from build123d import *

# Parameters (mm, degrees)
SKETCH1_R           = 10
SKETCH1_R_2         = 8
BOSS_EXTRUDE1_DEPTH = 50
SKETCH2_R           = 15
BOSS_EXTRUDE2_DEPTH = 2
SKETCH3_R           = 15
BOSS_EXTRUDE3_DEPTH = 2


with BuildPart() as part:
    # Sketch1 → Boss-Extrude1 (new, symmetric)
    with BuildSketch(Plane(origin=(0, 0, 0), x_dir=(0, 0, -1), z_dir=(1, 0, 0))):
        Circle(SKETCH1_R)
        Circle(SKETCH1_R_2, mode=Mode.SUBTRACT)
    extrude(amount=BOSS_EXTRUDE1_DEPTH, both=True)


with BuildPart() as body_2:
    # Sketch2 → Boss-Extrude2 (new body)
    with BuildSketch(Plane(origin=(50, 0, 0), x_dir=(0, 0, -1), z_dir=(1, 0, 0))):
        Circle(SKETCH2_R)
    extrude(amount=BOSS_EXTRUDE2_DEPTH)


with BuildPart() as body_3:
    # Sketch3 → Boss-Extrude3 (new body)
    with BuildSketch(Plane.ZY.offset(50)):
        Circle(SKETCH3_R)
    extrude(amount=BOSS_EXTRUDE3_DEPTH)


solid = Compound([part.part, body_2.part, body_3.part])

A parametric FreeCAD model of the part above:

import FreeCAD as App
import Part
import Sketcher

V = App.Vector

doc = App.newDocument("Part")
params = doc.addObject("Spreadsheet::Sheet", "Params")
for row, (alias, value) in enumerate([
    ("sketch1_diameter", "20 mm"),
    ("sketch1_diameter2", "16 mm"),
    ("pad1_length", "100 mm"),
    ("sketch2_diameter", "30 mm"),
    ("pad2_length", "2 mm"),
    ("sketch3_diameter", "30 mm"),
    ("pad3_length", "2 mm"),
], start=1):
    params.set(f"A{row}", alias)
    params.set(f"B{row}", "=" + value)
    params.setAlias(f"B{row}", alias)

body = doc.addObject("PartDesign::Body", "Body")

sketch1 = body.newObject("Sketcher::SketchObject", "Sketch")
sketch1.AttachmentSupport = (doc.getObject("YZ_Plane"), [""])
sketch1.MapMode = "FlatFace"
sketch1.addGeometry(Part.Circle(V(0, 0, 0), V(0, 0, 1), 10), False)
sketch1.addGeometry(Part.Circle(V(0, 0, 0), V(0, 0, 1), 8), False)
sketch1.addConstraint(Sketcher.Constraint("Coincident", 0, 3, -1, 1))
sketch1.addConstraint(Sketcher.Constraint("Coincident", 1, 3, -1, 1))
sketch1.addConstraint(Sketcher.Constraint("Diameter", 0, 20.0))
sketch1.addConstraint(Sketcher.Constraint("Diameter", 1, 16.0))
sketch1.setExpression("Constraints[2]", "Params.sketch1_diameter")
sketch1.setExpression("Constraints[3]", "Params.sketch1_diameter2")
pad1 = body.newObject("PartDesign::Pad", "Pad")
pad1.Profile = sketch1
pad1.setExpression("Length", "Params.pad1_length")
pad1.Midplane = True
body2 = doc.addObject("PartDesign::Body", "Body001")

sketch2 = body2.newObject("Sketcher::SketchObject", "Sketch001")
sketch2.AttachmentSupport = (doc.getObject("YZ_Plane001"), [""])
sketch2.MapMode = "FlatFace"
sketch2.AttachmentOffset = App.Placement(V(0, 0, 50), App.Rotation())
sketch2.addGeometry(Part.Circle(V(0, 0, 0), V(0, 0, 1), 15), False)
sketch2.addConstraint(Sketcher.Constraint("Coincident", 0, 3, -1, 1))
sketch2.addConstraint(Sketcher.Constraint("Diameter", 0, 30.0))
sketch2.setExpression("Constraints[1]", "Params.sketch2_diameter")
pad2 = body2.newObject("PartDesign::Pad", "Pad001")
pad2.Profile = sketch2
pad2.setExpression("Length", "Params.pad2_length")
body3 = doc.addObject("PartDesign::Body", "Body002")

sketch3 = body3.newObject("Sketcher::SketchObject", "Sketch002")
sketch3.AttachmentSupport = (doc.getObject("YZ_Plane002"), [""])
sketch3.MapMode = "FlatFace"
sketch3.AttachmentOffset = App.Placement(V(0, 0, -50), App.Rotation())
sketch3.addGeometry(Part.Circle(V(0, 0, 0), V(0, 0, 1), 15), False)
sketch3.addConstraint(Sketcher.Constraint("Coincident", 0, 3, -1, 1))
sketch3.addConstraint(Sketcher.Constraint("Diameter", 0, 30.0))
sketch3.setExpression("Constraints[1]", "Params.sketch3_diameter")
pad3 = body3.newObject("PartDesign::Pad", "Pad002")
pad3.Profile = sketch3
pad3.setExpression("Length", "Params.pad3_length")
pad3.Reversed = True

doc.recompute()
